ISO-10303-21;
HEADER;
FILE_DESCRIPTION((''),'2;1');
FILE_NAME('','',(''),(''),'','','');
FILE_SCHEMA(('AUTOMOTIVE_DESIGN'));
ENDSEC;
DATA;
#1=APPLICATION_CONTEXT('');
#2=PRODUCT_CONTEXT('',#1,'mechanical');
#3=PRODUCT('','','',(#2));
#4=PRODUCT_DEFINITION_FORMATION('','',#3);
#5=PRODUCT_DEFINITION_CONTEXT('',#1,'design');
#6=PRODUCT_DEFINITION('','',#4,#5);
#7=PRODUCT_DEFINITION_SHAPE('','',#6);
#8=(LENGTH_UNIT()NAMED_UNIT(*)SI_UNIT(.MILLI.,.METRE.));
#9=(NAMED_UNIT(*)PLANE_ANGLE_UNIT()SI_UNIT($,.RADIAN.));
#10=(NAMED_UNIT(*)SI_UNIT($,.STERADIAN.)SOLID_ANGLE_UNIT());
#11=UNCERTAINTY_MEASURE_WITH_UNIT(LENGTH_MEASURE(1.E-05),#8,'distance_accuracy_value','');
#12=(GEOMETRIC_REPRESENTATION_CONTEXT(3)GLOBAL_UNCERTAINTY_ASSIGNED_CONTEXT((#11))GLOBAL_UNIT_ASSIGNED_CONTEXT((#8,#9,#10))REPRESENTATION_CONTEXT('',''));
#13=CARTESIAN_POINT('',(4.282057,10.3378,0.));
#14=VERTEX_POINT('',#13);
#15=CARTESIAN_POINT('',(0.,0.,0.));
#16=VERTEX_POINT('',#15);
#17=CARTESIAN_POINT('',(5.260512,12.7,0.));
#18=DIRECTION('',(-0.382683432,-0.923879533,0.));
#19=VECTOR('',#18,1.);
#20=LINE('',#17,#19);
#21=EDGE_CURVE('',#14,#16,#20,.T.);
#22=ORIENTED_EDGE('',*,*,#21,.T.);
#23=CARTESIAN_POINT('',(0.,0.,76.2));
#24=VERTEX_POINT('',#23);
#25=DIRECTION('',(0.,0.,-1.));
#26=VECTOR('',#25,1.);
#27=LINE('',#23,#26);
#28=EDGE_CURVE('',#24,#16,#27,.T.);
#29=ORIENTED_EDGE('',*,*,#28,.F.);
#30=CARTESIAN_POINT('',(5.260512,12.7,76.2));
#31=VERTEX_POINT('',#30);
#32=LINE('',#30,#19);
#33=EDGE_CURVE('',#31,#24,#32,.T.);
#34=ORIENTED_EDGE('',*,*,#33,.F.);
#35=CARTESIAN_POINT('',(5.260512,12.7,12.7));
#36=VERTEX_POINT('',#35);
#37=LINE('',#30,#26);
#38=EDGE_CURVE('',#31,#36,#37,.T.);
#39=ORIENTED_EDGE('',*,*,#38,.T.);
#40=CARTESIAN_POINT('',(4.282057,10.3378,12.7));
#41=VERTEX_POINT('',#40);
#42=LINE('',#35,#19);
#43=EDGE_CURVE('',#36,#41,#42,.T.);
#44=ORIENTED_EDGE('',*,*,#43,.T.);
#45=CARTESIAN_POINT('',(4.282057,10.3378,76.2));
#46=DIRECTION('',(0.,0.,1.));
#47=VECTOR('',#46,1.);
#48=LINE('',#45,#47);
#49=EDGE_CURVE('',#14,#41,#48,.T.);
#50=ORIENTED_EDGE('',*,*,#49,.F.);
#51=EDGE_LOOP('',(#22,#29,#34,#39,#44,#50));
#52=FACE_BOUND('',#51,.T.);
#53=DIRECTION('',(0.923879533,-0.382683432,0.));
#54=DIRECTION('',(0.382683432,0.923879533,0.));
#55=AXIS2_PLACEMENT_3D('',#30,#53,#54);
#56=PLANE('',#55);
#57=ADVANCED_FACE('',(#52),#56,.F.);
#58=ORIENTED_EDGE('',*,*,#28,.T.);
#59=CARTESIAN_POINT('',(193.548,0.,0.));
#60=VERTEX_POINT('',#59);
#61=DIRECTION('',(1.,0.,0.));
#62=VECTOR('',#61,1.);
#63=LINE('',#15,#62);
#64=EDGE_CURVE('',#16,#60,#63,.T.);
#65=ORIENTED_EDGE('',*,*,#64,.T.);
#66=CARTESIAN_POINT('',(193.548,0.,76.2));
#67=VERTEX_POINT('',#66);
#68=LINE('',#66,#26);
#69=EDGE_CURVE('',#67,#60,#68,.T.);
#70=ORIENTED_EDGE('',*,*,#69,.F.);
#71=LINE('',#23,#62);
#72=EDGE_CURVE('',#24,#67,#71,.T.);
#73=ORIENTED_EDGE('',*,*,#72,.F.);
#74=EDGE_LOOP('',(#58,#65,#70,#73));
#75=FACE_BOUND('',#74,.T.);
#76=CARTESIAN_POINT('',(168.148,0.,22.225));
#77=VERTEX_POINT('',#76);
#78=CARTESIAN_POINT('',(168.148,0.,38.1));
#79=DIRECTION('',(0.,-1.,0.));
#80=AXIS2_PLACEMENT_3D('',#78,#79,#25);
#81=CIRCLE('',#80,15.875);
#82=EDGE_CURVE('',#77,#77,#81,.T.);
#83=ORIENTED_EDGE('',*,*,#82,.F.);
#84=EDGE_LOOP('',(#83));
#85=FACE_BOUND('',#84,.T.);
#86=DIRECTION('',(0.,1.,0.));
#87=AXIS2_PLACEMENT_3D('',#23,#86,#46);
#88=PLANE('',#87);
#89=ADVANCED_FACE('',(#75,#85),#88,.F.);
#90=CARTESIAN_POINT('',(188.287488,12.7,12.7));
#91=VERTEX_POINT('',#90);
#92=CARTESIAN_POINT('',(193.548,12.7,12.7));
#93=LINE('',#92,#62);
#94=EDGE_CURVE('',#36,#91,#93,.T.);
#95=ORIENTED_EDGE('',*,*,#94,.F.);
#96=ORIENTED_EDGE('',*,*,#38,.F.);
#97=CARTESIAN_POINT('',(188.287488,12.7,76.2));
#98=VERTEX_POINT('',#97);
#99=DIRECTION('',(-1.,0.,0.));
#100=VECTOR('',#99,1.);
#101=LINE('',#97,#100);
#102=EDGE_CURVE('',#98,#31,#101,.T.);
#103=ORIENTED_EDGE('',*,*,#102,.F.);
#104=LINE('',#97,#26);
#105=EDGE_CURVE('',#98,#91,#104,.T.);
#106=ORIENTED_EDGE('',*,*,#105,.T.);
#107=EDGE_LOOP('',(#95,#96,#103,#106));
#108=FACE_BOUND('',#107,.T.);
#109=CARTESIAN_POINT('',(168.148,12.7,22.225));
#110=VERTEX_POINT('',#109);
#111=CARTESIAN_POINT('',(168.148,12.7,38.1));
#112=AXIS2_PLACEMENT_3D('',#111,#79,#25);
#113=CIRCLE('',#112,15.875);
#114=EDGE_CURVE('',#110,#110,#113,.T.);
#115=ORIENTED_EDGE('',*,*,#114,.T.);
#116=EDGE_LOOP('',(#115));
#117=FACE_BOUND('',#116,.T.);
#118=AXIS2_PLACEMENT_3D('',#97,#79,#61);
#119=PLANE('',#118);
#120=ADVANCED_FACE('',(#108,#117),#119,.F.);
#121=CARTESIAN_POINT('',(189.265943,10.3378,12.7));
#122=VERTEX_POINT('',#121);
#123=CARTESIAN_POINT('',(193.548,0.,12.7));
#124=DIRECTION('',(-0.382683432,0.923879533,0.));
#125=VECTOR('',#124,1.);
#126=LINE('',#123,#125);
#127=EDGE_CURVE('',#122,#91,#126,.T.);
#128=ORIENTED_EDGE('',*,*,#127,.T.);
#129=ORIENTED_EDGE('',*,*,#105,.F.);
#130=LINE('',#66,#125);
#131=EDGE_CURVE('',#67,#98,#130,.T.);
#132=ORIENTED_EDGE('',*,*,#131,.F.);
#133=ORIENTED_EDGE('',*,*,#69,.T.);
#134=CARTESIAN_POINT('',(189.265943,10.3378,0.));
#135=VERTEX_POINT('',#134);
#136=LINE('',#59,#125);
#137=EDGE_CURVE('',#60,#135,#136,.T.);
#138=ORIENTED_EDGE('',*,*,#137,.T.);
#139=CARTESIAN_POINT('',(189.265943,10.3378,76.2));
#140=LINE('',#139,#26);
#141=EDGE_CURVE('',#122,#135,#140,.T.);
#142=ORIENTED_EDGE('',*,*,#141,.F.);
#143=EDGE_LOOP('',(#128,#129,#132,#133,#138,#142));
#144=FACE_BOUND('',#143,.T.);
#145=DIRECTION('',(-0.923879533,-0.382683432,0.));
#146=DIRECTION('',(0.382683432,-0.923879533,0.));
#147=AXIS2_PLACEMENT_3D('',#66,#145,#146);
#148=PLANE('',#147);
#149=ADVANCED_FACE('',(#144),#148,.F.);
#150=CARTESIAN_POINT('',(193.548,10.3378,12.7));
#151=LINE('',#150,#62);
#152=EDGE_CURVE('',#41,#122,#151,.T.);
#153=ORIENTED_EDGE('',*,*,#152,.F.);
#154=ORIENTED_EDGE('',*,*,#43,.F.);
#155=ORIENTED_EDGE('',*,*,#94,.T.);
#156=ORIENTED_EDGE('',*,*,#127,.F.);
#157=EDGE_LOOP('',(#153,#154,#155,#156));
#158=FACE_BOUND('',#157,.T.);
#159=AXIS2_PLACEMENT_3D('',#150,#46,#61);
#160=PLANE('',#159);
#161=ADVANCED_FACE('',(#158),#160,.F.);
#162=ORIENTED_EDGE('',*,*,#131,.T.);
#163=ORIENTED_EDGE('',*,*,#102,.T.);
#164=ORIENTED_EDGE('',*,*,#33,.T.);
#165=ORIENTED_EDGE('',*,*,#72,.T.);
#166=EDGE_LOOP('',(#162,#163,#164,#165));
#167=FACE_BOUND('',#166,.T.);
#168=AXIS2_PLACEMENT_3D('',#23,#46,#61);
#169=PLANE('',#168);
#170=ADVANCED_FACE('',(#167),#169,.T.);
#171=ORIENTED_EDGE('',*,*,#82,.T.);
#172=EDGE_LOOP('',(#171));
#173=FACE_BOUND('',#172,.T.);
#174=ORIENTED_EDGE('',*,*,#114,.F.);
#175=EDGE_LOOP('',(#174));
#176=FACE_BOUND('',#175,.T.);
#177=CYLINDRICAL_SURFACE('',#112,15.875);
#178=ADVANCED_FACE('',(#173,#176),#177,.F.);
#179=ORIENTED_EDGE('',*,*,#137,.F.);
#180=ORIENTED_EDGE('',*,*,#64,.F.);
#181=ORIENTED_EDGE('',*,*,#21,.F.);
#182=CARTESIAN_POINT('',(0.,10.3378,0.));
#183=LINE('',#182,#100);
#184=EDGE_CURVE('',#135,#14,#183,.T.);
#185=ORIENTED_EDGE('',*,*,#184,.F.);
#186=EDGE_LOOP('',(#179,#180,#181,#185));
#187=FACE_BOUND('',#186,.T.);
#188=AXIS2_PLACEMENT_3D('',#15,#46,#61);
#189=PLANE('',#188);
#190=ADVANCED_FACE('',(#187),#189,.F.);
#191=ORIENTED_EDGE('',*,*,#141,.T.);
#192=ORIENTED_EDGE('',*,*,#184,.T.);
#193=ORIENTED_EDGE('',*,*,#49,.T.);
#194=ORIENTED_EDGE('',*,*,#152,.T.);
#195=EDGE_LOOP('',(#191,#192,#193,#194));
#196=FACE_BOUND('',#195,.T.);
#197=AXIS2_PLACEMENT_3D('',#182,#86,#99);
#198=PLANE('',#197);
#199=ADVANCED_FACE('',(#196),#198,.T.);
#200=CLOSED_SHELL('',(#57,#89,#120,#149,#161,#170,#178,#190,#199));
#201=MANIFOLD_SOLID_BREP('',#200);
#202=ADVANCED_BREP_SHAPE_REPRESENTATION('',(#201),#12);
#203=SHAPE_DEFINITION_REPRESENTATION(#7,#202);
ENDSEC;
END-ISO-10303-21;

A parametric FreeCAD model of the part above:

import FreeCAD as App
import Part
import Sketcher
Q = App.Units.Quantity

doc = App.newDocument("Part")
body = doc.addObject("PartDesign::Body", "Body")

sketch1 = body.newObject("Sketcher::SketchObject", "Sketch")
sketch1.AttachmentSupport = (doc.getObject("XY_Plane"), [""])
sketch1.MapMode = "FlatFace"
sketch1.addGeometry([
    Part.LineSegment(App.Vector(0, 0, 0), App.Vector(193.548, 0, 0)),
    Part.LineSegment(App.Vector(193.548, 0, 0), App.Vector(188.287488, 12.7, 0)),
    Part.LineSegment(App.Vector(188.287488, 12.7, 0), App.Vector(5.260512, 12.7, 0)),
    Part.LineSegment(App.Vector(5.260512, 12.7, 0), App.Vector(0, 0, 0)),
], False)
sketch1.addConstraint([
    Sketcher.Constraint("Coincident", 0, 2, 1, 1),
    Sketcher.Constraint("Coincident", 1, 2, 2, 1),
    Sketcher.Constraint("Coincident", 2, 2, 3, 1),
    Sketcher.Constraint("Coincident", 3, 2, 0, 1),
    Sketcher.Constraint("Horizontal", 0),
    Sketcher.Constraint("Horizontal", 2),
    Sketcher.Constraint("Coincident", 3, 2, -1, 1),
    Sketcher.Constraint("Equal", 1, 3),
    Sketcher.Constraint("DistanceX", 0, 1, 0, 2, Q("7.62 in")),
    Sketcher.Constraint("DistanceY", -1, 1, 1, 2, Q("0.5 in")),
    Sketcher.Constraint("Angle", 1, Q("112.5 deg")),
])
pad1 = body.newObject("PartDesign::Pad", "Pad")
pad1.Profile = sketch1
pad1.Length = Q("3 in")

sketch2 = body.newObject("Sketcher::SketchObject", "Sketch001")
sketch2.AttachmentSupport = (doc.getObject("XZ_Plane"), [""])
sketch2.MapMode = "FlatFace"
sketch2.AttachmentOffset = App.Placement(App.Vector(0, 0, -0.5 * 25.4), App.Rotation())
sketch2.addGeometry([
    Part.LineSegment(App.Vector(0, 0, 0), App.Vector(0, 12.7, 0)),
    Part.LineSegment(App.Vector(0, 12.7, 0), App.Vector(193.548, 12.7, 0)),
    Part.LineSegment(App.Vector(193.548, 12.7, 0), App.Vector(193.548, 0, 0)),
    Part.LineSegment(App.Vector(193.548, 0, 0), App.Vector(0, 0, 0)),
], False)
sketch2.addConstraint([
    Sketcher.Constraint("Coincident", 0, 2, 1, 1),
    Sketcher.Constraint("Coincident", 1, 2, 2, 1),
    Sketcher.Constraint("Coincident", 2, 2, 3, 1),
    Sketcher.Constraint("Coincident", 3, 2, 0, 1),
    Sketcher.Constraint("Vertical", 0),
    Sketcher.Constraint("Horizontal", 1),
    Sketcher.Constraint("Vertical", 2),
    Sketcher.Constraint("Horizontal", 3),
    Sketcher.Constraint("Coincident", 3, 2, -1, 1),
    Sketcher.Constraint("DistanceY", 0, 1, 0, 2, Q("0.5 in")),
    Sketcher.Constraint("DistanceX", 1, 1, 1, 2, Q("7.62 in")),
])
pocket1 = body.newObject("PartDesign::Pocket", "Pocket")
pocket1.Profile = sketch2
pocket1.Length = Q("0.093 in")
pocket1.Reversed = True

sketch3 = body.newObject("Sketcher::SketchObject", "Sketch002")
sketch3.AttachmentSupport = (doc.getObject("XZ_Plane"), [""])
sketch3.MapMode = "FlatFace"
sketch3.addGeometry(Part.Circle(App.Vector(168.148, 38.1, 0), App.Vector(0, 0, 1), 15.875), False)
sketch3.addConstraint([
    Sketcher.Constraint("Diameter", 0, Q("1.25 in")),
    Sketcher.Constraint("DistanceY", -1, 1, 0, 3, Q("1.5 in")),
    Sketcher.Constraint("DistanceX", -1, 1, 0, 3, Q("6.62 in")),
])
pocket2 = body.newObject("PartDesign::Pocket", "Pocket001")
pocket2.Profile = sketch3
pocket2.Type = "ThroughAll"

doc.recompute()
